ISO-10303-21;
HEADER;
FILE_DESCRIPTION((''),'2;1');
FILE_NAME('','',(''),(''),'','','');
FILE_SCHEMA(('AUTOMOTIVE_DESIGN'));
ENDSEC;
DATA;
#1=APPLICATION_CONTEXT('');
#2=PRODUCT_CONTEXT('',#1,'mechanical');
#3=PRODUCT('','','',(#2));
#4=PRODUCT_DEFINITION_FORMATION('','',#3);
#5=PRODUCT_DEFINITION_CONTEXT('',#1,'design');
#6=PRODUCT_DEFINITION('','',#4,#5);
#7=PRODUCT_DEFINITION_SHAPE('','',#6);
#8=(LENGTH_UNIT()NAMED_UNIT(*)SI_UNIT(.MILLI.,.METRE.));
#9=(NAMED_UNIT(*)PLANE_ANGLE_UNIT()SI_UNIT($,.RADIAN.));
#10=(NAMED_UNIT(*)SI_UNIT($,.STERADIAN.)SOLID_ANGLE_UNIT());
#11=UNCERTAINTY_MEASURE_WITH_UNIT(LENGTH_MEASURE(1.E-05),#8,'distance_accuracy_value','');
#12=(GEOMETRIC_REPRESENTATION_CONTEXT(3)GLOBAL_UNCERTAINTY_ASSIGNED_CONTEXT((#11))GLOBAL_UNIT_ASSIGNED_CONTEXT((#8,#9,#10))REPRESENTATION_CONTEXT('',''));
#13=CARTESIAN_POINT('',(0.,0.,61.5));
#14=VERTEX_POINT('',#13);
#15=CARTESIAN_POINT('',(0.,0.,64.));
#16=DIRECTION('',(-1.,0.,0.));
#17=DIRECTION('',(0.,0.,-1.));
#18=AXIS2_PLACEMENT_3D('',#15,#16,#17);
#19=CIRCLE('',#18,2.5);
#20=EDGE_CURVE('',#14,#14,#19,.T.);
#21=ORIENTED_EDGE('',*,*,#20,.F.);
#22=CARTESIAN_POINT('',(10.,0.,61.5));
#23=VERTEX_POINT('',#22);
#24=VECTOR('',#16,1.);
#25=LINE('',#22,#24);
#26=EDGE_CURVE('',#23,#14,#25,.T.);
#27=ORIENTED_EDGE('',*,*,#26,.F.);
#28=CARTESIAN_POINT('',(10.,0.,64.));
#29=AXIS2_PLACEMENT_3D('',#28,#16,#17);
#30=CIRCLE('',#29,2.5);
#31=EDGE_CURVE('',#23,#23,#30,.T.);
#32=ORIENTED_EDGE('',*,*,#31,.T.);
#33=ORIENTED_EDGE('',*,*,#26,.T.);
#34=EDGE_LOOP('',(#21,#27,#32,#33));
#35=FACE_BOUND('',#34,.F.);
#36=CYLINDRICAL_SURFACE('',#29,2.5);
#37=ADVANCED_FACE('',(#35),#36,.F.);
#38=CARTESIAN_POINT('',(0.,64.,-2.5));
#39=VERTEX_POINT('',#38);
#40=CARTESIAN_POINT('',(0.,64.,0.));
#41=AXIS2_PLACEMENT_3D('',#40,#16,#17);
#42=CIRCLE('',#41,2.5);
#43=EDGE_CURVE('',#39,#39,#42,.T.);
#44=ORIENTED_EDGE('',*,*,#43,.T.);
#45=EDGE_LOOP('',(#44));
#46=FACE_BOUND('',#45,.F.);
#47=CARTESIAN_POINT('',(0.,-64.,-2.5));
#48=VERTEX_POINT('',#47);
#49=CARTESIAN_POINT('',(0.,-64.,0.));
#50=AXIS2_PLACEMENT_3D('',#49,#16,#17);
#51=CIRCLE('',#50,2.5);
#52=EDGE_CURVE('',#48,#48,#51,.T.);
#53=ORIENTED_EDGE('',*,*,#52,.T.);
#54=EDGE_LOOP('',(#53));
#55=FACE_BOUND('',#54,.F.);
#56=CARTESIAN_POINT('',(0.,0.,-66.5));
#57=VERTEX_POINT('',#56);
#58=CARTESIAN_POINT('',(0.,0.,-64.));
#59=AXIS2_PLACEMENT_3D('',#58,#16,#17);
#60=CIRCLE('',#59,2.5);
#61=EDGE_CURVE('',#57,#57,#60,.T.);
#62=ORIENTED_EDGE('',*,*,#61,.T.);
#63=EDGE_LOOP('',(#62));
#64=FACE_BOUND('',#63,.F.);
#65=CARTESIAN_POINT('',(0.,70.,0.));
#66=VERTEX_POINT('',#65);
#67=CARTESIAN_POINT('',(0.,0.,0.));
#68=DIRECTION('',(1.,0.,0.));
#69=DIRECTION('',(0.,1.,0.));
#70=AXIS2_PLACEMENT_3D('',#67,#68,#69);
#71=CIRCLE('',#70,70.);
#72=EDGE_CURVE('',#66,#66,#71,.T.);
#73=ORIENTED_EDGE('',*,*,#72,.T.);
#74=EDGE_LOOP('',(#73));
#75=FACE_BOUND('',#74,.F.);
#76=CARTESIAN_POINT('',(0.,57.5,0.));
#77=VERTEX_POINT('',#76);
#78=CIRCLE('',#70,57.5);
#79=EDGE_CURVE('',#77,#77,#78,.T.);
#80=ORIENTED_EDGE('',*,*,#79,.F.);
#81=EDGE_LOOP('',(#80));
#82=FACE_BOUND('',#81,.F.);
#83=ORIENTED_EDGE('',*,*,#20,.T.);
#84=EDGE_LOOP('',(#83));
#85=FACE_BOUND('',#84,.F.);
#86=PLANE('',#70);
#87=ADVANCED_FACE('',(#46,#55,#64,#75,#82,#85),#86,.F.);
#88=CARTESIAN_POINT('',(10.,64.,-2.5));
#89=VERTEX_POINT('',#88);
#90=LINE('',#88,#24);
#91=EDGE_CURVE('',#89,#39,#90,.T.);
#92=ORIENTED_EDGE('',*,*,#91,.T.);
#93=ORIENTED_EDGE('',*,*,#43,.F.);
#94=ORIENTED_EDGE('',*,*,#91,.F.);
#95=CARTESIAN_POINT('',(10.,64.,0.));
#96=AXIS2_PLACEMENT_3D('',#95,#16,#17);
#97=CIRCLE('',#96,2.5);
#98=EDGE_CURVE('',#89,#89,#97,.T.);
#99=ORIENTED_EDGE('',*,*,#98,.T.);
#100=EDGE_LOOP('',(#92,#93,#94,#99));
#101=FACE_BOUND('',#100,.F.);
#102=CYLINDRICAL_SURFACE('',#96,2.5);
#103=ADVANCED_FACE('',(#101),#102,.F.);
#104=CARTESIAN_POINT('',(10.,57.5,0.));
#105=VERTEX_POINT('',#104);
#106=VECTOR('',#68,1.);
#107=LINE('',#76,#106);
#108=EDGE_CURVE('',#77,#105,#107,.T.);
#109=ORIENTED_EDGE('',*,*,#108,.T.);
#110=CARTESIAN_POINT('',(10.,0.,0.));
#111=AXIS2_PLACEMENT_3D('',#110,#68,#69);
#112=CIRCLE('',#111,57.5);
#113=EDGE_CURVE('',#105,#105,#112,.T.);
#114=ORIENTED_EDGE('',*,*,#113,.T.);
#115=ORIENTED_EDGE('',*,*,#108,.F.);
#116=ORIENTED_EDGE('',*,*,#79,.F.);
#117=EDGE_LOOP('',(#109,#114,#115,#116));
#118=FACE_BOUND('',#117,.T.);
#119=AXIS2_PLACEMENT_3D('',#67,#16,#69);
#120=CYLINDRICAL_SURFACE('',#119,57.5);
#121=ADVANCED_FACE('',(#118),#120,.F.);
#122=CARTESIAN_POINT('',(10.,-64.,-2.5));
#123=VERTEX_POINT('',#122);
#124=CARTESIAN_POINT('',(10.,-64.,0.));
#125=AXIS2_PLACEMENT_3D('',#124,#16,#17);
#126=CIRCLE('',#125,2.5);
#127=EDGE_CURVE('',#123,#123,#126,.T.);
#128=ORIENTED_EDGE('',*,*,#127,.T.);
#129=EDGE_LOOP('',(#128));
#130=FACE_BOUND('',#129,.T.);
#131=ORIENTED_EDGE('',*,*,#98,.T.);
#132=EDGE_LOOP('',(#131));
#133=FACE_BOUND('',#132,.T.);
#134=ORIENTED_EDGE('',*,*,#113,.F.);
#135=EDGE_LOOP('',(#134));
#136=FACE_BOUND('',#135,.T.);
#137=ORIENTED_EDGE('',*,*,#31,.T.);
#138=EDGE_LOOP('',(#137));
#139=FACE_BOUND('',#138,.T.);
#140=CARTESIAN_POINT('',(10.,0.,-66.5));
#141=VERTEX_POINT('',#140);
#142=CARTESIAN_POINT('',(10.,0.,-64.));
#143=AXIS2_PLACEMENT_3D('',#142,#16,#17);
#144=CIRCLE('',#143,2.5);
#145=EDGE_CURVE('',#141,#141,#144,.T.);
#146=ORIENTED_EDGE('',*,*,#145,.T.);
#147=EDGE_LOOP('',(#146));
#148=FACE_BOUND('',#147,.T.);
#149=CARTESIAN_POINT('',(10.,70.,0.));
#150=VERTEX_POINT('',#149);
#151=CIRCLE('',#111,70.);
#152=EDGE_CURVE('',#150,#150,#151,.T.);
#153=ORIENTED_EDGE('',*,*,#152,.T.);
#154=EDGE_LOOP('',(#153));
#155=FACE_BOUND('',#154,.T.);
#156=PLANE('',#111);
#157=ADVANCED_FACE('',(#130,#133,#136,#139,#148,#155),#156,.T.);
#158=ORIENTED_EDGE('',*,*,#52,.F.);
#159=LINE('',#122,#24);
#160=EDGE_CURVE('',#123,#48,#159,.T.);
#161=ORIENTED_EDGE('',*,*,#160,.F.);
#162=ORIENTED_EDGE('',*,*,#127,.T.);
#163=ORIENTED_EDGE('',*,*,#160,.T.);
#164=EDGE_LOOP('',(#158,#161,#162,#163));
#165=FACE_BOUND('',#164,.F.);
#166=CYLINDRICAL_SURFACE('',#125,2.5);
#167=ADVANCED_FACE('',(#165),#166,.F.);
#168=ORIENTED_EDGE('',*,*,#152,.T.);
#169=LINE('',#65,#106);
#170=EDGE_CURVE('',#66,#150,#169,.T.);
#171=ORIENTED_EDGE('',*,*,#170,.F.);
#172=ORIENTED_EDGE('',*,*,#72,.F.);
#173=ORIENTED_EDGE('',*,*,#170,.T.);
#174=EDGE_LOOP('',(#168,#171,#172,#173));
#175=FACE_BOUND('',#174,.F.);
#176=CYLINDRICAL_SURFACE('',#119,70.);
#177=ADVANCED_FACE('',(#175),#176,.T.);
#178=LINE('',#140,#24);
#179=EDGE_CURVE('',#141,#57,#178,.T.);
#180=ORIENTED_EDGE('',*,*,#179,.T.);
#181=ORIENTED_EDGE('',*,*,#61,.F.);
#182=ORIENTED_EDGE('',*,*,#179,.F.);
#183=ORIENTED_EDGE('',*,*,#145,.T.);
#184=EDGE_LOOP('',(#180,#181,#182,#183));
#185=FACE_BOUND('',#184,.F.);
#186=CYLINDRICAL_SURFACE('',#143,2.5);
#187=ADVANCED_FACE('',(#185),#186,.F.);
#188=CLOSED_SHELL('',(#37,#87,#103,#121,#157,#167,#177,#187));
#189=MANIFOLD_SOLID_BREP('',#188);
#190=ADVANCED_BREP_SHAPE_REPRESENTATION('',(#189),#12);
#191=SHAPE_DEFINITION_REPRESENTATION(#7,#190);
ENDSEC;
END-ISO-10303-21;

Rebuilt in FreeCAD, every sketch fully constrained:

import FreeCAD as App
import Part
import Sketcher
from FreeCAD import Vector
Q = App.Units.Quantity

doc = App.newDocument("Part")
body = doc.addObject("PartDesign::Body", "Body")

# Sketch on YZ plane
sketch1 = body.newObject("Sketcher::SketchObject", "Sketch")
sketch1.AttachmentSupport = (doc.getObject("YZ_Plane"), [""])
sketch1.MapMode = "FlatFace"
sketch1.addGeometry(Part.Circle(Vector(0, 0, 0), Vector(0, 0, 1), 70), False)
sketch1.addGeometry(Part.Circle(Vector(0, 0, 0), Vector(0, 0, 1), 57.5), False)
sketch1.addConstraint(Sketcher.Constraint("Coincident", 0, 3, -1, 1))
sketch1.addConstraint(Sketcher.Constraint("Coincident", 1, 3, -1, 1))
sketch1.addConstraint(Sketcher.Constraint("Diameter", 0, Q("140 mm")))
sketch1.addConstraint(Sketcher.Constraint("Diameter", 1, Q("115 mm")))
pad1 = body.newObject("PartDesign::Pad", "Pad")
pad1.Profile = sketch1
pad1.Length = 10

# Sketch on YZ plane
sketch2 = body.newObject("Sketcher::SketchObject", "Sketch001")
sketch2.AttachmentSupport = (doc.getObject("YZ_Plane"), [""])
sketch2.MapMode = "FlatFace"
sketch2.AttachmentOffset = App.Placement(Vector(0, 0, 10), App.Rotation())
sketch2.addGeometry(Part.Circle(Vector(64, 0, 0), Vector(0, 0, 1), 2.5), False)
sketch2.addGeometry(Part.Circle(Vector(0, 64, 0), Vector(0, 0, 1), 2.5), False)
sketch2.addGeometry(Part.Circle(Vector(-64, 0, 0), Vector(0, 0, 1), 2.5), False)
sketch2.addGeometry(Part.Circle(Vector(0, -64, 0), Vector(0, 0, 1), 2.5), False)
sketch2.addConstraint(Sketcher.Constraint("Equal", 0, 1))
sketch2.addConstraint(Sketcher.Constraint("Equal", 1, 2))
sketch2.addConstraint(Sketcher.Constraint("Equal", 2, 3))
sketch2.addConstraint(Sketcher.Constraint("Symmetric", 0, 3, 2, 3, -1, 1))
sketch2.addConstraint(Sketcher.Constraint("Symmetric", 1, 3, 3, 3, -1, 1))
sketch2.addConstraint(Sketcher.Constraint("PointOnObject", 0, 3, -1))
sketch2.addConstraint(Sketcher.Constraint("PointOnObject", 1, 3, -2))
sketch2.addConstraint(Sketcher.Constraint("Diameter", 0, Q("5 mm")))
sketch2.addConstraint(Sketcher.Constraint("DistanceX", -1, 1, 0, 3, Q("64 mm")))
sketch2.addConstraint(Sketcher.Constraint("DistanceY", -1, 1, 1, 3, Q("64 mm")))
doc.recompute()
hole = body.newObject("PartDesign::Hole", "Hole")
hole.Profile = sketch2
hole.ThreadType = "None"
hole.Diameter = 5
hole.DepthType = "ThroughAll"

doc.recompute()
